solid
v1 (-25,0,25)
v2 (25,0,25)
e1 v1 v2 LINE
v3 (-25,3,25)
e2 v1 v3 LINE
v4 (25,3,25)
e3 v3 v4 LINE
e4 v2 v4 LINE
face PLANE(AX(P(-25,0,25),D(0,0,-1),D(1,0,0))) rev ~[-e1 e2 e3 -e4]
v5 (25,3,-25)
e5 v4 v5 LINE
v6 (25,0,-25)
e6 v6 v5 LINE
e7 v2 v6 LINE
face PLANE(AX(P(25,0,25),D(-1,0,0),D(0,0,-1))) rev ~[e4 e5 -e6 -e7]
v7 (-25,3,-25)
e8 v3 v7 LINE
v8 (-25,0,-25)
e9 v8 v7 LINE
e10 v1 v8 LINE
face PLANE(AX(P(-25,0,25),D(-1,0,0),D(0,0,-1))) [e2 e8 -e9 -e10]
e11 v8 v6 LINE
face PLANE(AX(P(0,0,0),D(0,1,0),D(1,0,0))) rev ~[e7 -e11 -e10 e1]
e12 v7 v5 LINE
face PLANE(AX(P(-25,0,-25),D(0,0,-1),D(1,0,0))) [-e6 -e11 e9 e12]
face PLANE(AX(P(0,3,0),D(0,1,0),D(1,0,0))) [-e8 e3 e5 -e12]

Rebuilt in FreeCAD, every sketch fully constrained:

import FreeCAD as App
import Part
import Sketcher
Q = App.Units.Quantity

doc = App.newDocument("Part")
body = doc.addObject("PartDesign::Body", "Body")

# Sketch on XZ plane
sketch1 = body.newObject("Sketcher::SketchObject", "Sketch")
sketch1.AttachmentSupport = (doc.getObject("XZ_Plane"), [""])
sketch1.MapMode = "FlatFace"
sketch1.addGeometry([
    Part.LineSegment(App.Vector(-25, -25, 0), App.Vector(-25, 25, 0)),
    Part.LineSegment(App.Vector(-25, 25, 0), App.Vector(25, 25, 0)),
    Part.LineSegment(App.Vector(25, 25, 0), App.Vector(25, -25, 0)),
    Part.LineSegment(App.Vector(25, -25, 0), App.Vector(-25, -25, 0)),
], False)
sketch1.addConstraint([
    Sketcher.Constraint("Coincident", 0, 2, 1, 1),
    Sketcher.Constraint("Coincident", 1, 2, 2, 1),
    Sketcher.Constraint("Coincident", 2, 2, 3, 1),
    Sketcher.Constraint("Coincident", 3, 2, 0, 1),
    Sketcher.Constraint("Vertical", 0),
    Sketcher.Constraint("Horizontal", 1),
    Sketcher.Constraint("Vertical", 2),
    Sketcher.Constraint("Horizontal", 3),
    Sketcher.Constraint("Symmetric", 0, 2, 2, 2, -1, 1),
    Sketcher.Constraint("Equal", 3, 0),
    Sketcher.Constraint("DistanceX", 1, 1, 1, 2, Q("50 mm")),
])
pad1 = body.newObject("PartDesign::Pad", "Pad")
pad1.Profile = sketch1
pad1.Length = 3
pad1.Reversed = True

doc.recompute()
